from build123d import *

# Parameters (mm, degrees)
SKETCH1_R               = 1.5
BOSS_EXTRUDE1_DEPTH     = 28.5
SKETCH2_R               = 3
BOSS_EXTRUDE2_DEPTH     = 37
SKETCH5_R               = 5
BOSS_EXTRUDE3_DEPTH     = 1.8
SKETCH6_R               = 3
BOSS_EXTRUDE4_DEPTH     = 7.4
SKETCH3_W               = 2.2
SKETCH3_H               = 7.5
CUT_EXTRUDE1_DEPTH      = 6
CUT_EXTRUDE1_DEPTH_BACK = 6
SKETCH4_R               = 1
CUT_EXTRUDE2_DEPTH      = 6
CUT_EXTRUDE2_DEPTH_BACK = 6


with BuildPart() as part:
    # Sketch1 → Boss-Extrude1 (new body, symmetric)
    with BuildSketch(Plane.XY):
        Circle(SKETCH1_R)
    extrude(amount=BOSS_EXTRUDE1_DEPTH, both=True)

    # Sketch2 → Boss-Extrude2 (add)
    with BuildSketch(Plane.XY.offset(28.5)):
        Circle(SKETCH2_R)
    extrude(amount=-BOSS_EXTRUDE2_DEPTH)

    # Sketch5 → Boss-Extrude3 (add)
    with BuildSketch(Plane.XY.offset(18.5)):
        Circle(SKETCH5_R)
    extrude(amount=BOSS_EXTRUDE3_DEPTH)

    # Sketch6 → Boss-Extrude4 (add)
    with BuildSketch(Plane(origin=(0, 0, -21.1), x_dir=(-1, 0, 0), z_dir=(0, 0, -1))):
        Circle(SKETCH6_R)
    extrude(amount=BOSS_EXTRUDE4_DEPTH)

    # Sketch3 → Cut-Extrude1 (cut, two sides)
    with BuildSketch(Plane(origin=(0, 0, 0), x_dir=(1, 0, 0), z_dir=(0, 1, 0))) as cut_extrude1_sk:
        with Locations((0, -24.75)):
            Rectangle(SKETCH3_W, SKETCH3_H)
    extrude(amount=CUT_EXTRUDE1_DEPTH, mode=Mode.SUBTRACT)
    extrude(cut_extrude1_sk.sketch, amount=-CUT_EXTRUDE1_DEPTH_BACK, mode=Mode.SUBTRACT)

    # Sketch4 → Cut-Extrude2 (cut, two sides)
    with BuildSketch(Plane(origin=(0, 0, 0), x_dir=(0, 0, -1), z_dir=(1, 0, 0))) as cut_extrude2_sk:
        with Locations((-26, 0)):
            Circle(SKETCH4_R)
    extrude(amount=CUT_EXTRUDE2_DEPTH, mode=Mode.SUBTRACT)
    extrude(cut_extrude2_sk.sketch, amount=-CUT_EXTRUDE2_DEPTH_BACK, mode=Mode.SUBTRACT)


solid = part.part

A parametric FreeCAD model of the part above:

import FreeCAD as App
import Part
import Sketcher

V = App.Vector

doc = App.newDocument("Part")
params = doc.addObject("Spreadsheet::Sheet", "Params")
for row, (alias, value) in enumerate([
    ("sketch1_diameter", "3 mm"),
    ("pad1_length", "57 mm"),
    ("sketch2_diameter", "6 mm"),
    ("pad2_length", "37 mm"),
    ("sketch3_diameter", "10 mm"),
    ("pad3_length", "1.8 mm"),
    ("sketch4_diameter", "6 mm"),
    ("pad4_length", "7.4 mm"),
    ("sketch5_width", "2.2 mm"),
    ("sketch5_height", "7.5 mm"),
    ("sketch6_diameter", "2 mm"),
], start=1):
    params.set(f"A{row}", alias)
    params.set(f"B{row}", "=" + value)
    params.setAlias(f"B{row}", alias)

body = doc.addObject("PartDesign::Body", "Body")

# Sketch on XY plane
sketch1 = doc.addObject("Sketcher::SketchObject", "Sketch")
body.addObject(sketch1)
sketch1.AttachmentSupport = (doc.XY_Plane, [""])
sketch1.MapMode = "FlatFace"
sketch1.addGeometry(Part.Circle(V(0, 0, 0), V(0, 0, 1), 1.5), False)
sketch1.addConstraint([
    Sketcher.Constraint("Coincident", 0, 3, -1, 1),
    Sketcher.Constraint("Diameter", 0, 3.0),
])
sketch1.setExpression("Constraints[1]", "Params.sketch1_diameter")
pad1 = doc.addObject("PartDesign::Pad", "Pad")
body.addObject(pad1)
pad1.Profile = sketch1
pad1.setExpression("Length", "Params.pad1_length")
pad1.Midplane = True

# Sketch on XY plane
sketch2 = doc.addObject("Sketcher::SketchObject", "Sketch001")
body.addObject(sketch2)
sketch2.AttachmentSupport = (doc.XY_Plane, [""])
sketch2.MapMode = "FlatFace"
sketch2.AttachmentOffset = App.Placement(V(0, 0, 28.5), App.Rotation())
sketch2.addGeometry(Part.Circle(V(0, 0, 0), V(0, 0, 1), 3), False)
sketch2.addConstraint([
    Sketcher.Constraint("Coincident", 0, 3, -1, 1),
    Sketcher.Constraint("Diameter", 0, 6.0),
])
sketch2.setExpression("Constraints[1]", "Params.sketch2_diameter")
pad2 = doc.addObject("PartDesign::Pad", "Pad001")
body.addObject(pad2)
pad2.Profile = sketch2
pad2.setExpression("Length", "Params.pad2_length")
pad2.Reversed = True

# Sketch on XY plane
sketch3 = doc.addObject("Sketcher::SketchObject", "Sketch002")
body.addObject(sketch3)
sketch3.AttachmentSupport = (doc.XY_Plane, [""])
sketch3.MapMode = "FlatFace"
sketch3.AttachmentOffset = App.Placement(V(0, 0, 18.5), App.Rotation())
sketch3.addGeometry(Part.Circle(V(0, 0, 0), V(0, 0, 1), 5), False)
sketch3.addConstraint([
    Sketcher.Constraint("Coincident", 0, 3, -1, 1),
    Sketcher.Constraint("Diameter", 0, 10.0),
])
sketch3.setExpression("Constraints[1]", "Params.sketch3_diameter")
pad3 = doc.addObject("PartDesign::Pad", "Pad002")
body.addObject(pad3)
pad3.Profile = sketch3
pad3.setExpression("Length", "Params.pad3_length")

# Sketch on XY plane
sketch4 = doc.addObject("Sketcher::SketchObject", "Sketch003")
body.addObject(sketch4)
sketch4.AttachmentSupport = (doc.XY_Plane, [""])
sketch4.MapMode = "FlatFace"
sketch4.AttachmentOffset = App.Placement(V(0, 0, -21.1), App.Rotation())
sketch4.addGeometry(Part.Circle(V(0, 0, 0), V(0, 0, 1), 3), False)
sketch4.addConstraint([
    Sketcher.Constraint("Coincident", 0, 3, -1, 1),
    Sketcher.Constraint("Diameter", 0, 6.0),
])
sketch4.setExpression("Constraints[1]", "Params.sketch4_diameter")
pad4 = doc.addObject("PartDesign::Pad", "Pad003")
body.addObject(pad4)
pad4.Profile = sketch4
pad4.setExpression("Length", "Params.pad4_length")
pad4.Reversed = True

# Sketch on XZ plane
sketch5 = doc.addObject("Sketcher::SketchObject", "Sketch004")
body.addObject(sketch5)
sketch5.AttachmentSupport = (doc.XZ_Plane, [""])
sketch5.MapMode = "FlatFace"
sketch5.addGeometry([
    Part.LineSegment(V(-1.1, 21, 0), V(-1.1, 28.5, 0)),
    Part.LineSegment(V(-1.1, 28.5, 0), V(1.1, 28.5, 0)),
    Part.LineSegment(V(1.1, 28.5, 0), V(1.1, 21, 0)),
    Part.LineSegment(V(1.1, 21, 0), V(-1.1, 21, 0)),
], False)
sketch5.addConstraint([
    Sketcher.Constraint("Coincident", 0, 2, 1, 1),
    Sketcher.Constraint("Coincident", 1, 2, 2, 1),
    Sketcher.Constraint("Coincident", 2, 2, 3, 1),
    Sketcher.Constraint("Coincident", 3, 2, 0, 1),
    Sketcher.Constraint("Vertical", 0),
    Sketcher.Constraint("Horizontal", 1),
    Sketcher.Constraint("Vertical", 2),
    Sketcher.Constraint("Horizontal", 3),
    Sketcher.Constraint("DistanceX", 1, 1, 1, 2, 2.2),
    Sketcher.Constraint("DistanceY", 0, 1, 0, 2, 7.5),
    Sketcher.Constraint("DistanceY", -1, 1, 2, 2, 21.0),
    Sketcher.Constraint("DistanceX", 0, 2, -1, 1, 1.1),
])
sketch5.setExpression("Constraints[8]", "Params.sketch5_width")
sketch5.setExpression("Constraints[9]", "Params.sketch5_height")
pocket1 = doc.addObject("PartDesign::Pocket", "Pocket")
body.addObject(pocket1)
pocket1.Profile = sketch5
pocket1.Type = "ThroughAll"
pocket1.Midplane = True

# Sketch on YZ plane
sketch6 = doc.addObject("Sketcher::SketchObject", "Sketch005")
body.addObject(sketch6)
sketch6.AttachmentSupport = (doc.YZ_Plane, [""])
sketch6.MapMode = "FlatFace"
sketch6.addGeometry(Part.Circle(V(0, 26, 0), V(0, 0, 1), 1), False)
sketch6.addConstraint([
    Sketcher.Constraint("PointOnObject", 0, 3, -2),
    Sketcher.Constraint("Diameter", 0, 2.0),
    Sketcher.Constraint("DistanceY", -1, 1, 0, 3, 26.0),
])
sketch6.setExpression("Constraints[1]", "Params.sketch6_diameter")
pocket2 = doc.addObject("PartDesign::Pocket", "Pocket001")
body.addObject(pocket2)
pocket2.Profile = sketch6
pocket2.Type = "ThroughAll"
pocket2.Midplane = True

doc.recompute()
